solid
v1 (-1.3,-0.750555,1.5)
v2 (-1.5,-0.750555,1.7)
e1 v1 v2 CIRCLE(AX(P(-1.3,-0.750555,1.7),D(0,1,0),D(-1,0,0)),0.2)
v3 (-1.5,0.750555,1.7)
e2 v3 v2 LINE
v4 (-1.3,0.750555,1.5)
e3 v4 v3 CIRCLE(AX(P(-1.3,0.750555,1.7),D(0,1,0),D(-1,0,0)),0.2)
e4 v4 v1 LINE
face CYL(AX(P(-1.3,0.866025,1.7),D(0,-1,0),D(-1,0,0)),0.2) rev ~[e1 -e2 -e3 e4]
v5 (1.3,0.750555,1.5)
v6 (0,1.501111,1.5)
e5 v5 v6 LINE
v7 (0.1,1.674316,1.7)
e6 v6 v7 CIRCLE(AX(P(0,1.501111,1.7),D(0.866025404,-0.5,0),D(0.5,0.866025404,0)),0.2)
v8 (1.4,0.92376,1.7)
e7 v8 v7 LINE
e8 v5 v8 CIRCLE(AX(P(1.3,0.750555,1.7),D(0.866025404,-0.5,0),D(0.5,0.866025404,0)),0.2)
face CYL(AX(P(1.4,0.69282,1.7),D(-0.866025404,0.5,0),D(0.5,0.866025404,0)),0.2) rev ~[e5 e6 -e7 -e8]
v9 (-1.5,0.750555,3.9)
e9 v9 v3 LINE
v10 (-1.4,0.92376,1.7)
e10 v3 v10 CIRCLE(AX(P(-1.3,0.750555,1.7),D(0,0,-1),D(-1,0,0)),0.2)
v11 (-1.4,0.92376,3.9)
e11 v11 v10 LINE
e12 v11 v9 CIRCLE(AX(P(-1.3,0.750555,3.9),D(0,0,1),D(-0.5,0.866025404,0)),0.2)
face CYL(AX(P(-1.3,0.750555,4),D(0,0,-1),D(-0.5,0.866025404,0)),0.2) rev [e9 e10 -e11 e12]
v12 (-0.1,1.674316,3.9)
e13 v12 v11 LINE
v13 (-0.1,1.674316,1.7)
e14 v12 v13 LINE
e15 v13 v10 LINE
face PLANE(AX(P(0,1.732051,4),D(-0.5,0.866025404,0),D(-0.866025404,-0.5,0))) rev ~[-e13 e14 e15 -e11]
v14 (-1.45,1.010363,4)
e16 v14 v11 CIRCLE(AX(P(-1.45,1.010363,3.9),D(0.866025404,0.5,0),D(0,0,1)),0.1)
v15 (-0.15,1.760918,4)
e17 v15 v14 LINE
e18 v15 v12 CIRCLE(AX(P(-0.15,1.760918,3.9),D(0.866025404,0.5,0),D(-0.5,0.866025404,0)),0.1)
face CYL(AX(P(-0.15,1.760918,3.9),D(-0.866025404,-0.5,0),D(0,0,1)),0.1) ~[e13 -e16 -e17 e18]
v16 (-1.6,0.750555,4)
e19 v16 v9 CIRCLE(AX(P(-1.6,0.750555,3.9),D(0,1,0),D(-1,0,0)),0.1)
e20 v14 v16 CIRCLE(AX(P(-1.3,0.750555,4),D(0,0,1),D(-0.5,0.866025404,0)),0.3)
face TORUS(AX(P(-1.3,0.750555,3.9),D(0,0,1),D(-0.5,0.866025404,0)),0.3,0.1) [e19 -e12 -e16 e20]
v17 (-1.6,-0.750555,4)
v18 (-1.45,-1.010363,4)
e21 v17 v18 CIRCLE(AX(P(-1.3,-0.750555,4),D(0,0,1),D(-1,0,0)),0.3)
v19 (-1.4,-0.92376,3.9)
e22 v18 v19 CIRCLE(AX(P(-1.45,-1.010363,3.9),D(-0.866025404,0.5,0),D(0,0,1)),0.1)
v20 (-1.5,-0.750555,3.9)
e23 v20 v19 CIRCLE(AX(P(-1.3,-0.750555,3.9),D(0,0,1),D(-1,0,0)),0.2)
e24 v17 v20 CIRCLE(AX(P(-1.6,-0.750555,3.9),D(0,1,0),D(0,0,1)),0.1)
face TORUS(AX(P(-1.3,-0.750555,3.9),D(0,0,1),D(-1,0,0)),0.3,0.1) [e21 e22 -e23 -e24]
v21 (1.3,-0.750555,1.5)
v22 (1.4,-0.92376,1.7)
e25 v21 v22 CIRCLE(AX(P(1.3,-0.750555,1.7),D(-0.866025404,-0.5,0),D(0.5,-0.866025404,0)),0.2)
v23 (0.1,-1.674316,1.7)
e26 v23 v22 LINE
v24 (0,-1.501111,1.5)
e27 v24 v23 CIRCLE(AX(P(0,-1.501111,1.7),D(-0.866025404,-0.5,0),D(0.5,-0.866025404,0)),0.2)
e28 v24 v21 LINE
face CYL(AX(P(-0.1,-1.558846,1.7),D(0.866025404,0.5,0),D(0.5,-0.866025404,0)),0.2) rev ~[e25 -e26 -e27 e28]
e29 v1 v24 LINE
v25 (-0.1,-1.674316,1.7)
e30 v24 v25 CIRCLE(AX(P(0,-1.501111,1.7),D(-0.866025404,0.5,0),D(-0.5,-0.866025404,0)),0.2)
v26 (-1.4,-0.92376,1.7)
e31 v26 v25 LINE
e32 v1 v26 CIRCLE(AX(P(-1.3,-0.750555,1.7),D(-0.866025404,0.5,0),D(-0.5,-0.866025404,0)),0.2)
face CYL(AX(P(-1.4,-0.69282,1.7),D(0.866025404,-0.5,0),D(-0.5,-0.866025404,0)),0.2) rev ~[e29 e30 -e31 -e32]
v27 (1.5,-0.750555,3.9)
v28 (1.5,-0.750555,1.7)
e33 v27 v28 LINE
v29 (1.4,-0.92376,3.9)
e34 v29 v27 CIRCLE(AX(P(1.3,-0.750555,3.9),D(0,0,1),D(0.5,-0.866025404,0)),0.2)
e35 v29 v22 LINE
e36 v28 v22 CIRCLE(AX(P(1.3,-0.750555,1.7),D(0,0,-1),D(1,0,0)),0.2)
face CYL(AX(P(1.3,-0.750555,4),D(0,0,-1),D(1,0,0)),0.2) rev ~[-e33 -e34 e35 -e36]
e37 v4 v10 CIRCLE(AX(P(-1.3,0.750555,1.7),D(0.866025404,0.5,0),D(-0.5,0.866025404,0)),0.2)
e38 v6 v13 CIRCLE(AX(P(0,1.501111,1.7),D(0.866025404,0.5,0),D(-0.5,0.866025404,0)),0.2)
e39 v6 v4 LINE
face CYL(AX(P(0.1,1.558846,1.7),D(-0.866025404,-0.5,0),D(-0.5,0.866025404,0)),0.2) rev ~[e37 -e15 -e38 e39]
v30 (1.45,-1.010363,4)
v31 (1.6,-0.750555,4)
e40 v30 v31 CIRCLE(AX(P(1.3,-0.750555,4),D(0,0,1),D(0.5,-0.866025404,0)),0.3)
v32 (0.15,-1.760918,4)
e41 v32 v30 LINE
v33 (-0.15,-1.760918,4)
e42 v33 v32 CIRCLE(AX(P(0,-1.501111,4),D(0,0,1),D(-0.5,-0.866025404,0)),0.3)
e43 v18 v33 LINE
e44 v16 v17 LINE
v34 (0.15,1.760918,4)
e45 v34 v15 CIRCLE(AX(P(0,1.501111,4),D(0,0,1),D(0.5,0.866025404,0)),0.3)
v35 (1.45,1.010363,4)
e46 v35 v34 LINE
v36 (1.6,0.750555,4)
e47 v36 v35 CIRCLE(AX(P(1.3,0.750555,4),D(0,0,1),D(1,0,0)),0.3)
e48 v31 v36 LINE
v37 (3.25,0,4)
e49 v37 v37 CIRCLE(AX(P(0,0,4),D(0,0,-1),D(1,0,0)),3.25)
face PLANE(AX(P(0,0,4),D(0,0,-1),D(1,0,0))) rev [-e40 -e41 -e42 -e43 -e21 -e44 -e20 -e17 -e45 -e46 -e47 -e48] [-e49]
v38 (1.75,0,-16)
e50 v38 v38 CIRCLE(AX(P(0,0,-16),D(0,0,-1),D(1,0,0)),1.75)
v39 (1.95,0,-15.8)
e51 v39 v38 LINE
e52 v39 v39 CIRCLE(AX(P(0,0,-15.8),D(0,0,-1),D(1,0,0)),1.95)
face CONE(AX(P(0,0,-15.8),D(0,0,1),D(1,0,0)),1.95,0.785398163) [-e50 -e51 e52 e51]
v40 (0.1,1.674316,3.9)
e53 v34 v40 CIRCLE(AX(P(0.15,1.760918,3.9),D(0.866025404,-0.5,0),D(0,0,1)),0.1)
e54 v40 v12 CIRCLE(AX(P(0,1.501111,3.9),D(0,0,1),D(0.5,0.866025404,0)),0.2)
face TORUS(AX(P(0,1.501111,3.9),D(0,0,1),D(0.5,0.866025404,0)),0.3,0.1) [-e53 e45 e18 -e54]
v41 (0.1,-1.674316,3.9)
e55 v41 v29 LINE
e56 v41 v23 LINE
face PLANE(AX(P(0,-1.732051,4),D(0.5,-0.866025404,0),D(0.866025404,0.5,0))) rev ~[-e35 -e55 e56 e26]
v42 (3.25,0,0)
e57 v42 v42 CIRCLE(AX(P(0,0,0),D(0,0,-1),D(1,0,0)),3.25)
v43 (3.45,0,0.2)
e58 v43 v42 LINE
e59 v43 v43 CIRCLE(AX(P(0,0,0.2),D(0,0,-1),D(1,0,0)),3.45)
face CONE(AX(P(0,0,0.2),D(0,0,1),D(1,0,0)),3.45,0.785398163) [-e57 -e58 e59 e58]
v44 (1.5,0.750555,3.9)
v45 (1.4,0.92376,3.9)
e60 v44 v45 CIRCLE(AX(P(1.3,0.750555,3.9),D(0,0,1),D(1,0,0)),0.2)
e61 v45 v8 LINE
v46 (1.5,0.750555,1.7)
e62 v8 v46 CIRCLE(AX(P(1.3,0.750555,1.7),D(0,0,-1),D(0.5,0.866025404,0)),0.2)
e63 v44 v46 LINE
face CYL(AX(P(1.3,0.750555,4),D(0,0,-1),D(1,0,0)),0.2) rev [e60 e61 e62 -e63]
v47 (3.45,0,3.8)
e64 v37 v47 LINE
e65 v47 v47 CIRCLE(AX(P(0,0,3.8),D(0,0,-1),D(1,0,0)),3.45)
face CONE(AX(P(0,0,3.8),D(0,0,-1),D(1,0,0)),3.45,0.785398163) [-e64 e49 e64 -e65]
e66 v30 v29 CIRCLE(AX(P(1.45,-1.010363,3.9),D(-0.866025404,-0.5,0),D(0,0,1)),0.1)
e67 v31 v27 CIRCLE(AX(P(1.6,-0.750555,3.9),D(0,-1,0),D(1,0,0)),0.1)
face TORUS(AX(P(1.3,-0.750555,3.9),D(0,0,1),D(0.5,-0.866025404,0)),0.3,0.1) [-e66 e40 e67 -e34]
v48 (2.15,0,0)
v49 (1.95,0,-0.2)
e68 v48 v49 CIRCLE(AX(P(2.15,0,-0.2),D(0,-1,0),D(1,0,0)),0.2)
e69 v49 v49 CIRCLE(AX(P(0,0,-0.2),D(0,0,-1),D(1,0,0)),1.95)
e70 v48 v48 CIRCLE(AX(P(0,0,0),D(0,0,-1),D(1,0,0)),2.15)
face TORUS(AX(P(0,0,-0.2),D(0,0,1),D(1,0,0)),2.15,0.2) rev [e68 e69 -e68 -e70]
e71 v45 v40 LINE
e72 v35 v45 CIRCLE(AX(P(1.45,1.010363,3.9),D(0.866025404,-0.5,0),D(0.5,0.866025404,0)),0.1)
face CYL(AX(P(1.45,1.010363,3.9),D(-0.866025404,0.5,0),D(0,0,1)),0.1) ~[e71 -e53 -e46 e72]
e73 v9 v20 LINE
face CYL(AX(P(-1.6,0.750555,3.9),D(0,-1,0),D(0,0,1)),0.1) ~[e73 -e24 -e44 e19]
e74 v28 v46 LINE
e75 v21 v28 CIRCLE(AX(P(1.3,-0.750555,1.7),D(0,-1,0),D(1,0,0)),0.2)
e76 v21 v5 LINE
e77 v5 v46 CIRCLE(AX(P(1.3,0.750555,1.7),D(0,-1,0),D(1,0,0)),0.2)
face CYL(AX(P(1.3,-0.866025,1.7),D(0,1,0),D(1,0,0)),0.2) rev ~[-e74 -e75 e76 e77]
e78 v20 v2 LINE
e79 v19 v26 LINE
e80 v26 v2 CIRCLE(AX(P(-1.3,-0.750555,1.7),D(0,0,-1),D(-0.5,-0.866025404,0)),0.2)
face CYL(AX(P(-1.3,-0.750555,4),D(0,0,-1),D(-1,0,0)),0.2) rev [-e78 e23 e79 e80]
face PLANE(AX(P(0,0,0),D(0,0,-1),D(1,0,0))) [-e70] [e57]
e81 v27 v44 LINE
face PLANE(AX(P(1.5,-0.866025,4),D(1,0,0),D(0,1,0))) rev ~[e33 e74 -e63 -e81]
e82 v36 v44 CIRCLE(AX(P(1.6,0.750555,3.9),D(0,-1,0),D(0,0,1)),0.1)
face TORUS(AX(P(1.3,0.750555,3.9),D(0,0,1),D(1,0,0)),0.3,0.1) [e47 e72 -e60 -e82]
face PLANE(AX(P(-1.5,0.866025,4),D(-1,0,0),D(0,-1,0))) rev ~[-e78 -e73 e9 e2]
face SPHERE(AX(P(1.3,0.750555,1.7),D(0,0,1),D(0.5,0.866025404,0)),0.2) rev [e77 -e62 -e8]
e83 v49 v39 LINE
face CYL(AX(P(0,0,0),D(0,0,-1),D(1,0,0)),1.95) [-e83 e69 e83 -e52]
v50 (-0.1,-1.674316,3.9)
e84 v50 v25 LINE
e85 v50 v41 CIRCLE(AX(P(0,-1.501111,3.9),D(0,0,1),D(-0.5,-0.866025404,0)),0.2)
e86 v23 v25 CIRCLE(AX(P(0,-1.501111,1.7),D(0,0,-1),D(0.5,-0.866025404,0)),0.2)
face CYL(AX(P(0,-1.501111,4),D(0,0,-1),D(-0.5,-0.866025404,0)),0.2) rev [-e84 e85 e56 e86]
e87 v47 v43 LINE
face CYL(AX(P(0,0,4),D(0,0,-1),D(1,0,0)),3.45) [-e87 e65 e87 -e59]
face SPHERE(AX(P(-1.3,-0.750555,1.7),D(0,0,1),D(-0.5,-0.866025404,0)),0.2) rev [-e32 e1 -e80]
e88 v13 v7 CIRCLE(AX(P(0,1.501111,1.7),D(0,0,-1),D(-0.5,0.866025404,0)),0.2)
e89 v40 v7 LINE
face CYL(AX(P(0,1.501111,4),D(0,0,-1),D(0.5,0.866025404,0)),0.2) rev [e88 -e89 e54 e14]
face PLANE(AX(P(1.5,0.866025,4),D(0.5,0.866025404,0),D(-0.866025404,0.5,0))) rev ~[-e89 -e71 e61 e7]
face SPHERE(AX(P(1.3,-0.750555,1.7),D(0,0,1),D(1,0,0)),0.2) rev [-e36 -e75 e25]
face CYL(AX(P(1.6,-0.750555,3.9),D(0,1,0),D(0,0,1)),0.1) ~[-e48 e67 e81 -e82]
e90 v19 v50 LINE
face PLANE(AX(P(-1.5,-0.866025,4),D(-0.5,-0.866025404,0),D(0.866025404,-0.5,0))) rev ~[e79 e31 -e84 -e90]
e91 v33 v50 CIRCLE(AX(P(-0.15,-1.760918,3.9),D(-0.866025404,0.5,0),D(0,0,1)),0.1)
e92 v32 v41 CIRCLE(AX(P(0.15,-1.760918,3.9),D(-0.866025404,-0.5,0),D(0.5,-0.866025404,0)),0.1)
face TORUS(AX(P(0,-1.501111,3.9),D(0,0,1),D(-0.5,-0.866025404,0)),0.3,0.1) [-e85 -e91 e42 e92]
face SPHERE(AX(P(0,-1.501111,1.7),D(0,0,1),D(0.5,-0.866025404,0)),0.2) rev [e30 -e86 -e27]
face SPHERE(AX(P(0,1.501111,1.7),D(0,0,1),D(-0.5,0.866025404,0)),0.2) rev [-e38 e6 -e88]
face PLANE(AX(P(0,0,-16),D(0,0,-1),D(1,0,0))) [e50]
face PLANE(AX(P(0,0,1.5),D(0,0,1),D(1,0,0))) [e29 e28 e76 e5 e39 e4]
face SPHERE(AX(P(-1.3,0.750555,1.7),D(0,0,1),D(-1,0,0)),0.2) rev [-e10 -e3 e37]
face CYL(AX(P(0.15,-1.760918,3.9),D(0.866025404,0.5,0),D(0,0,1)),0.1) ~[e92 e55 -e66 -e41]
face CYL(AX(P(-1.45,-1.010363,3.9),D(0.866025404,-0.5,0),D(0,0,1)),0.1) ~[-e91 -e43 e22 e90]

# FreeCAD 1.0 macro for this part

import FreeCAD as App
import Part
import Sketcher

V = App.Vector
Q = App.Units.Quantity


def edges_at(feature, points):
    """Names of the edges that pass closest to the given points."""
    edges = feature.Shape.Edges
    near = lambda p: min(range(len(edges)), key=lambda i: edges[i].distToShape(Part.Vertex(*p))[0])
    return sorted({f"Edge{near(p) + 1}" for p in points})


def add_polygon(sketch, points):
    """Adds a closed chain of lines whose ends are joined by coincident constraints."""
    first, n = sketch.GeometryCount, len(points)
    for a, b in zip(points, points[1:] + points[:1]):
        sketch.addGeometry(Part.LineSegment(App.Vector(*a, 0), App.Vector(*b, 0)), False)
    for i in range(n):
        sketch.addConstraint(Sketcher.Constraint("Coincident", first + i, 2, first + (i + 1) % n, 1))

doc = App.newDocument("Part")
params = doc.addObject("Spreadsheet::Sheet", "Params")
for row, (alias, value) in enumerate([
    ("sketch1_height", "20 mm"),
    ("sketch1_height2", "16 mm"),
    ("sketch1_width", "1.5 mm"),
    ("sketch1_width2", "3.45 mm"),
    ("revolution_angle", "360 deg"),
    ("pocket1_length", "2.5 mm"),
    ("chamfer_size", "0.2 mm"),
    ("fillet_radius", "0.2 mm"),
    ("fillet2_radius", "0.1 mm"),
], start=1):
    params.set(f"A{row}", alias)
    params.set(f"B{row}", "=" + value)
    params.setAlias(f"B{row}", alias)

body = doc.addObject("PartDesign::Body", "Body")

# Sketch on YZ plane
sketch1 = body.newObject("Sketcher::SketchObject", "Sketch")
sketch1.AttachmentSupport = (doc.getObject("YZ_Plane"), [""])
sketch1.MapMode = "FlatFace"
add_polygon(sketch1, [(3.5, 4), (0, 4), (0, -16), (1.9, -16), (1.9, 0), (3.5, 0)])  # lines 0-5
sketch1.addConstraint([
    Sketcher.Constraint("Horizontal", 0),
    Sketcher.Constraint("Vertical", 1),
    Sketcher.Constraint("Horizontal", 2),
    Sketcher.Constraint("Vertical", 3),
    Sketcher.Constraint("Horizontal", 4),
    Sketcher.Constraint("Vertical", 5),
    Sketcher.Constraint("PointOnObject", 0, 2, -2),
    Sketcher.Constraint("PointOnObject", 3, 2, -1),
    Sketcher.Constraint("DistanceY", 1, 2, 1, 1, Q("20 mm")),
    Sketcher.Constraint("DistanceY", 3, 1, 3, 2, Q("16 mm")),
    Sketcher.Constraint("DistanceX", 4, 1, 4, 2, Q("1.5 mm")),
    Sketcher.Constraint("DistanceX", 0, 2, 0, 1, Q("3.45 mm")),
])
sketch1.setExpression("Constraints[14]", "Params.sketch1_height")
sketch1.setExpression("Constraints[15]", "Params.sketch1_height2")
sketch1.setExpression("Constraints[16]", "Params.sketch1_width")
sketch1.setExpression("Constraints[17]", "Params.sketch1_width2")
revolution = body.newObject("PartDesign::Revolution", "Revolution")
revolution.Profile = sketch1
revolution.ReferenceAxis = (sketch1, ["V_Axis"])
revolution.setExpression("Angle", "Params.revolution_angle")

# Sketch on XY plane
sketch2 = body.newObject("Sketcher::SketchObject", "Sketch001")
sketch2.AttachmentSupport = (doc.getObject("XY_Plane"), [""])
sketch2.MapMode = "FlatFace"
sketch2.AttachmentOffset = App.Placement(V(0, 0, 4), App.Rotation())
add_polygon(sketch2, [(1.5, -0.9), (1.5, 0.9), (0, 1.7), (-1.5, 0.9), (-1.5, -0.9), (0, -1.7)])  # lines 0-5
sketch2.addConstraint([
    Sketcher.Constraint("Vertical", 0),
    Sketcher.Constraint("Vertical", 3),
    Sketcher.Constraint("Symmetric", 0, 2, 3, 2, -1, 1),
    Sketcher.Constraint("Symmetric", 1, 2, 4, 2, -1, 1),
    Sketcher.Constraint("PointOnObject", 1, 2, -2),
    Sketcher.Constraint("Parallel", 2, 5),
    Sketcher.Constraint("Horizontal", 0, 2, 2, 2),
    Sketcher.Constraint("Angle", 1, Q("150 deg")),
    Sketcher.Constraint("DistanceX", 2, 2, 0, 2, Q("3 mm")),
    Sketcher.Constraint("DistanceY", 0, 1, 0, 2, Q("1.732051 mm")),
])
pocket1 = body.newObject("PartDesign::Pocket", "Pocket")
pocket1.Profile = sketch2
pocket1.setExpression("Length", "Params.pocket1_length")
doc.recompute()

chamfer = body.newObject("PartDesign::Chamfer", "Chamfer")
chamfer.Base = (pocket1, edges_at(pocket1, [(-1.95, 0, -16), (-3.45, 0, 0), (-3.45, 0, 4)]))
chamfer.setExpression("Size", "Params.chamfer_size")
doc.recompute()

fillet = body.newObject("PartDesign::Fillet", "Fillet")
fillet.Base = (chamfer, edges_at(chamfer, [
    (0.75, -1.299, 1.5),
    (1.5, -0.866, 2.75),
    (-0.75, -1.299, 1.5),
    (0, -1.732, 2.75),
    (-1.5, 0, 1.5),
    (-1.5, -0.866, 2.75),
    (-0.75, 1.299, 1.5),
    (-1.5, 0.866, 2.75),
    (0.75, 1.299, 1.5),
    (0, 1.732, 2.75),
    (1.5, 0, 1.5),
    (1.5, 0.866, 2.75),
    (-1.95, 0, 0),
]))
fillet.setExpression("Radius", "Params.fillet_radius")
doc.recompute()

fillet2 = body.newObject("PartDesign::Fillet", "Fillet001")
fillet2.Base = (fillet, edges_at(fillet, [
    (-0.75, -1.299, 4),
    (-1.5, 0, 4),
    (-0.75, 1.299, 4),
    (0.75, 1.299, 4),
    (1.5, 0, 4),
    (0.75, -1.299, 4),
    (-1.473, -0.851, 4),
    (0, -1.701, 4),
    (1.473, -0.851, 4),
    (1.473, 0.851, 4),
    (0, 1.701, 4),
    (-1.473, 0.851, 4),
]))
fillet2.setExpression("Radius", "Params.fillet2_radius")

doc.recompute()
